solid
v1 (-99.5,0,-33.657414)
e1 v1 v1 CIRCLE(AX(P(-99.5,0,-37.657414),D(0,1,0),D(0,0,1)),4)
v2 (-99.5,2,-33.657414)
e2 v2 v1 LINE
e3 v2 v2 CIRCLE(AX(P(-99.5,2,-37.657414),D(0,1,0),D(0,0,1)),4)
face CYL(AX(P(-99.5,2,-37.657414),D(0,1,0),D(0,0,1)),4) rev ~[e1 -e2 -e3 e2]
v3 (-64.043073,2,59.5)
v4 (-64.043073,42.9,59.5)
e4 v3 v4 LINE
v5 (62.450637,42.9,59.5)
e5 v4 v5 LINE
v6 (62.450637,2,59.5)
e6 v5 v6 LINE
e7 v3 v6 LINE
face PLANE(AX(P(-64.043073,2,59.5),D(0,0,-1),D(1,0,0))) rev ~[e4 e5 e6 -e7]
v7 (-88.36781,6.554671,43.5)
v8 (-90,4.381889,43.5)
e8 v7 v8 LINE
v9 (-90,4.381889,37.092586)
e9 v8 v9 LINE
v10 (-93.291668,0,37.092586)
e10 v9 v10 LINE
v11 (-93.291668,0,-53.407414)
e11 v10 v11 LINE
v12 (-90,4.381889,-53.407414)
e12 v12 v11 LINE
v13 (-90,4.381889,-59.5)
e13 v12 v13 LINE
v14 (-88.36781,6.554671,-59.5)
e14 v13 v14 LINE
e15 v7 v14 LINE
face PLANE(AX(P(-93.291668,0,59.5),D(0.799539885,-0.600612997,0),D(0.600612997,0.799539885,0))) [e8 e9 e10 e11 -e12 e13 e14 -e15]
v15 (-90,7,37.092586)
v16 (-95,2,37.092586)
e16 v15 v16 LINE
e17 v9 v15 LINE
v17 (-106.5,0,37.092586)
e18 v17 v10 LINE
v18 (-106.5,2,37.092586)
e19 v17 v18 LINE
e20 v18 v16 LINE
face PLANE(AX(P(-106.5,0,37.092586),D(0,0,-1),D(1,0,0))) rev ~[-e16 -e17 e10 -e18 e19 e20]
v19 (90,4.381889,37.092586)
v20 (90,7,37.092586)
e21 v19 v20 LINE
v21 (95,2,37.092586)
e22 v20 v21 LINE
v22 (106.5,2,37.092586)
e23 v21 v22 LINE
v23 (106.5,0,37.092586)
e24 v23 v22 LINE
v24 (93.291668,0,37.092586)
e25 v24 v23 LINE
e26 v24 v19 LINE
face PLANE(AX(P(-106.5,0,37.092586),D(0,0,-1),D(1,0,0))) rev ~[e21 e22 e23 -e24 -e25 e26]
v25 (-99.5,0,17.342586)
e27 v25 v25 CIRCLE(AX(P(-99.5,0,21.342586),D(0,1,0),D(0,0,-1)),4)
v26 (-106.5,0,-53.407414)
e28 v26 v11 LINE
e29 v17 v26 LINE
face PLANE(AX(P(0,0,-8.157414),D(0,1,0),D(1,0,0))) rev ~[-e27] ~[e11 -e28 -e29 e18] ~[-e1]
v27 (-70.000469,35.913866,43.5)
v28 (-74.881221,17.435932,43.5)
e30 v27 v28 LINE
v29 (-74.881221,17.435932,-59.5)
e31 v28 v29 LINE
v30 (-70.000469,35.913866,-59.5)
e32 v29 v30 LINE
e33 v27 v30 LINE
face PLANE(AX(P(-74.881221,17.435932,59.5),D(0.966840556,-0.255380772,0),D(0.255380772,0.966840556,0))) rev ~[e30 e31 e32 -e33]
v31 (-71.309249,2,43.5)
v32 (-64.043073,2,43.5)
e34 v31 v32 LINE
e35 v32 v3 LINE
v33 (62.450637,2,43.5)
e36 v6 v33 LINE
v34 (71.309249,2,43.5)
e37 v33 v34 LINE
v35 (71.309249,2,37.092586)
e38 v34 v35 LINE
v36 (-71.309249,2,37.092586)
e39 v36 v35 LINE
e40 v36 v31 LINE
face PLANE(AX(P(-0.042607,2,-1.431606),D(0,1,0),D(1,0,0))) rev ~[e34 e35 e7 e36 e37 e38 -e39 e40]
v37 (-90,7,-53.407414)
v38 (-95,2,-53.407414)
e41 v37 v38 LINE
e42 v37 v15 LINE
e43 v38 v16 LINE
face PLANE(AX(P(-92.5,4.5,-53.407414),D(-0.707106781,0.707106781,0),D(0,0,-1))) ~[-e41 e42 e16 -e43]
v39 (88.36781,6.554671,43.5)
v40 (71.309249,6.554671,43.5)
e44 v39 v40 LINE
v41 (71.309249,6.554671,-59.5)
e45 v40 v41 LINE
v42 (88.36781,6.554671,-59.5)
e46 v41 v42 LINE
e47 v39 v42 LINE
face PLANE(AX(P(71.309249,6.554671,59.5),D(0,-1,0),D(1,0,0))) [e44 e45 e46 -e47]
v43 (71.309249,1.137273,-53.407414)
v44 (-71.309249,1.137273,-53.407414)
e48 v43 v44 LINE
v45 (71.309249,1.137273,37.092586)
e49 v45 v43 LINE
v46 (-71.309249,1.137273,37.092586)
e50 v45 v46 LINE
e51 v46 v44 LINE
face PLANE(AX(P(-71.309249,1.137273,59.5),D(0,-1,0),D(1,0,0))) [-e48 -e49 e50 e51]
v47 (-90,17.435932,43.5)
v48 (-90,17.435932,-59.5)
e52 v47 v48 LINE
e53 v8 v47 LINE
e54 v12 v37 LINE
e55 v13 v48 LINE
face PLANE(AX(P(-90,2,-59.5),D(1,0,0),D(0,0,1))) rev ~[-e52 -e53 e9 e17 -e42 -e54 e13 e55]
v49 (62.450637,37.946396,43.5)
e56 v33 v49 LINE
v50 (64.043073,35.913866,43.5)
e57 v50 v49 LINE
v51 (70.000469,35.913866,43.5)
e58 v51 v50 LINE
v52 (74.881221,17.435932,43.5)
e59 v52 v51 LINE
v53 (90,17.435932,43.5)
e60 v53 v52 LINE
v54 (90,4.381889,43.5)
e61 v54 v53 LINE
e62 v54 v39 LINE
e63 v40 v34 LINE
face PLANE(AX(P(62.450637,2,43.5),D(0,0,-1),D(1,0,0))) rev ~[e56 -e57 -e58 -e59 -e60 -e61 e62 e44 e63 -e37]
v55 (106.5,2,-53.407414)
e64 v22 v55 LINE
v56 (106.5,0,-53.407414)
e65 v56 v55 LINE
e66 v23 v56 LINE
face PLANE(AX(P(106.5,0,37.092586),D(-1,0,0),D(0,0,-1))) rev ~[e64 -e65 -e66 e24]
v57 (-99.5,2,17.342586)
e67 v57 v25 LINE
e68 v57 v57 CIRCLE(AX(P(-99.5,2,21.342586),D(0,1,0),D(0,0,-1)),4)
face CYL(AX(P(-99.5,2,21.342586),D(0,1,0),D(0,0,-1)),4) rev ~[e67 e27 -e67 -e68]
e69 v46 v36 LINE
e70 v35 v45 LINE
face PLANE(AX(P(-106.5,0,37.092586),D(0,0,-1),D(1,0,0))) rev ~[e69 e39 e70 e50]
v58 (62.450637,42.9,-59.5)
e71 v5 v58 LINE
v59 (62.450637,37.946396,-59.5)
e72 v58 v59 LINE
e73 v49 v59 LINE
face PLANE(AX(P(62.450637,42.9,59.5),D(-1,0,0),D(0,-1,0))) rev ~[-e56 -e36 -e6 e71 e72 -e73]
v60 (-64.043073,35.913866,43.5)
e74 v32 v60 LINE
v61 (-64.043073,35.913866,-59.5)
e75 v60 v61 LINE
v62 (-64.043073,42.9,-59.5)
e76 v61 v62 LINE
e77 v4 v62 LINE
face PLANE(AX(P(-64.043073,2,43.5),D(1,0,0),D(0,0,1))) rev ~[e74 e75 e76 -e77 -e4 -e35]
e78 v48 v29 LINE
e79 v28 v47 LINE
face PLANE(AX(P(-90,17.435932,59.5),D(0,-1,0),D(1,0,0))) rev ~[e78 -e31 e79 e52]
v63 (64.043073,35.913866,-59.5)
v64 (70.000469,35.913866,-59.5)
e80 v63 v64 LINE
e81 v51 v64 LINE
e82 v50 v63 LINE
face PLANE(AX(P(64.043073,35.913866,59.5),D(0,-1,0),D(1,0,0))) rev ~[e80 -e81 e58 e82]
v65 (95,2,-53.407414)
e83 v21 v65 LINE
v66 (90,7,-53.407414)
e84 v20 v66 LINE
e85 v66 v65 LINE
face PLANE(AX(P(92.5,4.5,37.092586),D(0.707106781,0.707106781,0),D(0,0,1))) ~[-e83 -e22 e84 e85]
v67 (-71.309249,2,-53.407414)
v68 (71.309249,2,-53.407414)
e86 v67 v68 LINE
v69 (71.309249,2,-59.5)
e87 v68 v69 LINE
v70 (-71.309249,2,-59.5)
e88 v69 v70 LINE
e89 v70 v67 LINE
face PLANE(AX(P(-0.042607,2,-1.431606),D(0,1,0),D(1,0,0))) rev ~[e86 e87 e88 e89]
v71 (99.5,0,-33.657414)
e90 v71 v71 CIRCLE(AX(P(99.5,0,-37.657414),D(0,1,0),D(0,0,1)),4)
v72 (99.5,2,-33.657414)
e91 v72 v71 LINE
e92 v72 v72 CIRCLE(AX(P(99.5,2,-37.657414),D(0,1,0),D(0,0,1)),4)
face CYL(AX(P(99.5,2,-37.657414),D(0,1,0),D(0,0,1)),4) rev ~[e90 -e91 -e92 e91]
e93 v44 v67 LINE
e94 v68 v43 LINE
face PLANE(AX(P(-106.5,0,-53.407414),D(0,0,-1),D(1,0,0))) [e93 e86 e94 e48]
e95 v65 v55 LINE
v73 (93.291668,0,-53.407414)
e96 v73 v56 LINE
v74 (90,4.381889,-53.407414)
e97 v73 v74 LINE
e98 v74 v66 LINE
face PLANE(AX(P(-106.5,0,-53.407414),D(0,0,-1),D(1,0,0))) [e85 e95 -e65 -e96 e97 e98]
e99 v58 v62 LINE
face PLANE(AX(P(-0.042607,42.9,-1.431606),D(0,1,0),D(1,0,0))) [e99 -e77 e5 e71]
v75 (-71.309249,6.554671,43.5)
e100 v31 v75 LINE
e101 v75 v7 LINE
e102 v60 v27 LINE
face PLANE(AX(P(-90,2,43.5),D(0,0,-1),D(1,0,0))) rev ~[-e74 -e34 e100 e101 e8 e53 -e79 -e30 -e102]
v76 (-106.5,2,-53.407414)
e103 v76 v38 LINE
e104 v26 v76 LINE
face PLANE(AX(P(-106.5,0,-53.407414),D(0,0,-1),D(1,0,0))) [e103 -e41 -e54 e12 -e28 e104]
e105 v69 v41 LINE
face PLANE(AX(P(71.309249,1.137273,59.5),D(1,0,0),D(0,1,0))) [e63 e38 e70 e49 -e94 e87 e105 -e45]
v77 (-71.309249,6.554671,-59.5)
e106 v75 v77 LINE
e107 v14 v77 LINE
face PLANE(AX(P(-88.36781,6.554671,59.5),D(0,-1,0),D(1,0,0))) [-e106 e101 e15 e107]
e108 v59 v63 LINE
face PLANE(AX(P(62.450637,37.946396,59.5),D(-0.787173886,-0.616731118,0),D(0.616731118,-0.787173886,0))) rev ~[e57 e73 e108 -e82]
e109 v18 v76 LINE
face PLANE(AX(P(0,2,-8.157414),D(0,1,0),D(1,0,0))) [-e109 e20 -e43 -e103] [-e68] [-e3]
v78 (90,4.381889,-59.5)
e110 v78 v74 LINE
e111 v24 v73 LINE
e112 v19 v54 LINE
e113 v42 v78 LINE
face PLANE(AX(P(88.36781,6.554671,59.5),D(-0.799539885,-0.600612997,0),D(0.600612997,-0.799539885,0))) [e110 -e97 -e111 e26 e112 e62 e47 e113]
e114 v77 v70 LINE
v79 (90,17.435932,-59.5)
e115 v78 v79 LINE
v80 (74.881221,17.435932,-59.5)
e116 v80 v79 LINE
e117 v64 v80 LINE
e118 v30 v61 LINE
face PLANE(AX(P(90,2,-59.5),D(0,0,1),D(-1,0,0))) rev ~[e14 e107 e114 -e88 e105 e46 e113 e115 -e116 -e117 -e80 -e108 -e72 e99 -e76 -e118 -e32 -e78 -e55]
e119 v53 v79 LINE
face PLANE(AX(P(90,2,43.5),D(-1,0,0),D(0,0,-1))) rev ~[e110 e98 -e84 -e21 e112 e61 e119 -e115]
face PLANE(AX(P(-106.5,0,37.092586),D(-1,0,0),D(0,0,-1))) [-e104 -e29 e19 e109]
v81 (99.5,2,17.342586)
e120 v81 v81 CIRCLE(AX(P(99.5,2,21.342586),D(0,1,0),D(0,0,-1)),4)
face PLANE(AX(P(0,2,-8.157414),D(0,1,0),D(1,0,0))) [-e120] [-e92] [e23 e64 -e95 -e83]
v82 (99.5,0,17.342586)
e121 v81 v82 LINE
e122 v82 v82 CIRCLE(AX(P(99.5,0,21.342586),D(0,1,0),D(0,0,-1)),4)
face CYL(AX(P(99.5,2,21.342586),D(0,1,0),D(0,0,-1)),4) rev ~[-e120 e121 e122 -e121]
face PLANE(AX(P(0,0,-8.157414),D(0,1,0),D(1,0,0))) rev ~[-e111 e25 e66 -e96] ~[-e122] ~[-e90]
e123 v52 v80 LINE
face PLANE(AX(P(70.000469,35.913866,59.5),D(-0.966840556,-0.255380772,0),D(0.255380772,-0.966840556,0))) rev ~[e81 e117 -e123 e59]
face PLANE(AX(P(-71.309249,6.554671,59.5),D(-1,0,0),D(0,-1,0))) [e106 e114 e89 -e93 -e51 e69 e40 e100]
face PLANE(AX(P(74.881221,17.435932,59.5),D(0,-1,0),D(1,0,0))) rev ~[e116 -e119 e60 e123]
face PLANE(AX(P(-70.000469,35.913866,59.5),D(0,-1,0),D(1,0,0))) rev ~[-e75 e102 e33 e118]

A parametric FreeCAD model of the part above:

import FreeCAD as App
import Part
import Sketcher
Q = App.Units.Quantity


def edges_at(feature, points):
    """Names of the edges that pass closest to the given points."""
    edges = feature.Shape.Edges
    near = lambda p: min(range(len(edges)), key=lambda i: edges[i].distToShape(Part.Vertex(*p))[0])
    return sorted({f"Edge{near(p) + 1}" for p in points})

doc = App.newDocument("Part")
body = doc.addObject("PartDesign::Body", "Body")

sketch1 = body.newObject("Sketcher::SketchObject", "Sketch")
sketch1.AttachmentSupport = (doc.getObject("XZ_Plane"), [""])
sketch1.MapMode = "FlatFace"
sketch1.addGeometry(Part.LineSegment(App.Vector(-106.5, -53.407414, 0), App.Vector(-106.5, 37.092586, 0)), False)
sketch1.addGeometry(Part.LineSegment(App.Vector(-106.5, 37.092586, 0), App.Vector(106.5, 37.092586, 0)), False)
sketch1.addGeometry(Part.LineSegment(App.Vector(106.5, 37.092586, 0), App.Vector(106.5, -53.407414, 0)), False)
sketch1.addGeometry(Part.LineSegment(App.Vector(106.5, -53.407414, 0), App.Vector(-106.5, -53.407414, 0)), False)
sketch1.addConstraint(Sketcher.Constraint("Coincident", 0, 2, 1, 1))
sketch1.addConstraint(Sketcher.Constraint("Coincident", 1, 2, 2, 1))
sketch1.addConstraint(Sketcher.Constraint("Coincident", 2, 2, 3, 1))
sketch1.addConstraint(Sketcher.Constraint("Coincident", 3, 2, 0, 1))
sketch1.addConstraint(Sketcher.Constraint("Vertical", 0))
sketch1.addConstraint(Sketcher.Constraint("Horizontal", 1))
sketch1.addConstraint(Sketcher.Constraint("Vertical", 2))
sketch1.addConstraint(Sketcher.Constraint("Horizontal", 3))
sketch1.addConstraint(Sketcher.Constraint("DistanceX", 1, 1, 1, 2, Q("213 mm")))
sketch1.addConstraint(Sketcher.Constraint("DistanceY", 0, 1, 0, 2, Q("90.5 mm")))
sketch1.addConstraint(Sketcher.Constraint("DistanceX", 0, 2, -1, 1, Q("106.5 mm")))
sketch1.addConstraint(Sketcher.Constraint("DistanceY", -1, 1, 0, 2, Q("37.092586 mm")))
pad1 = body.newObject("PartDesign::Pad", "Pad")
pad1.Profile = sketch1
pad1.Length = 2
pad1.Reversed = True

sketch2 = body.newObject("Sketcher::SketchObject", "Sketch001")
sketch2.AttachmentSupport = (doc.getObject("XZ_Plane"), [""])
sketch2.MapMode = "FlatFace"
sketch2.AttachmentOffset = App.Placement(App.Vector(0, 0, -2), App.Rotation())
sketch2.addGeometry(Part.LineSegment(App.Vector(-90, -59.5, 0), App.Vector(-90, 43.5, 0)), False)
sketch2.addGeometry(Part.LineSegment(App.Vector(-90, 43.5, 0), App.Vector(-64.043073, 43.5, 0)), False)
sketch2.addGeometry(Part.LineSegment(App.Vector(-64.043073, 43.5, 0), App.Vector(-64.043073, 59.5, 0)), False)
sketch2.addGeometry(Part.LineSegment(App.Vector(-64.043073, 59.5, 0), App.Vector(62.450637, 59.5, 0)), False)
sketch2.addGeometry(Part.LineSegment(App.Vector(62.450637, 59.5, 0), App.Vector(62.450637, 43.5, 0)), False)
sketch2.addGeometry(Part.LineSegment(App.Vector(62.450637, 43.5, 0), App.Vector(90, 43.5, 0)), False)
sketch2.addGeometry(Part.LineSegment(App.Vector(90, 43.5, 0), App.Vector(90, -59.5, 0)), False)
sketch2.addGeometry(Part.LineSegment(App.Vector(90, -59.5, 0), App.Vector(-90, -59.5, 0)), False)
sketch2.addConstraint(Sketcher.Constraint("Coincident", 0, 2, 1, 1))
sketch2.addConstraint(Sketcher.Constraint("Coincident", 1, 2, 2, 1))
sketch2.addConstraint(Sketcher.Constraint("Coincident", 2, 2, 3, 1))
sketch2.addConstraint(Sketcher.Constraint("Coincident", 3, 2, 4, 1))
sketch2.addConstraint(Sketcher.Constraint("Coincident", 4, 2, 5, 1))
sketch2.addConstraint(Sketcher.Constraint("Coincident", 5, 2, 6, 1))
sketch2.addConstraint(Sketcher.Constraint("Coincident", 6, 2, 7, 1))
sketch2.addConstraint(Sketcher.Constraint("Coincident", 7, 2, 0, 1))
sketch2.addConstraint(Sketcher.Constraint("Vertical", 0))
sketch2.addConstraint(Sketcher.Constraint("Horizontal", 1))
sketch2.addConstraint(Sketcher.Constraint("Vertical", 2))
sketch2.addConstraint(Sketcher.Constraint("Horizontal", 3))
sketch2.addConstraint(Sketcher.Constraint("Vertical", 4))
sketch2.addConstraint(Sketcher.Constraint("Horizontal", 5))
sketch2.addConstraint(Sketcher.Constraint("Vertical", 6))
sketch2.addConstraint(Sketcher.Constraint("Horizontal", 7))
sketch2.addConstraint(Sketcher.Constraint("Symmetric", 0, 2, 5, 2, -2))
sketch2.addConstraint(Sketcher.Constraint("DistanceX", 7, 2, 7, 1, Q("180 mm")))
sketch2.addConstraint(Sketcher.Constraint("DistanceY", 0, 1, 0, 2, Q("103 mm")))
sketch2.addConstraint(Sketcher.Constraint("DistanceY", 2, 1, 2, 2, Q("16 mm")))
sketch2.addConstraint(Sketcher.Constraint("DistanceY", -1, 1, 0, 2, Q("43.5 mm")))
sketch2.addConstraint(Sketcher.Constraint("DistanceX", 3, 1, 3, 2, Q("126.49371 mm")))
sketch2.addConstraint(Sketcher.Constraint("DistanceX", 1, 1, 1, 2, Q("25.956927 mm")))
pad2 = body.newObject("PartDesign::Pad", "Pad001")
pad2.Profile = sketch2
pad2.Length = 40.9
pad2.Reversed = True
doc.recompute()

chamfer = body.newObject("PartDesign::Chamfer", "Chamfer")
chamfer.Base = (pad2, edges_at(pad2, [(90, 2, -8.157), (-90, 2, -8.157)]))
chamfer.Size = 5

sketch3 = body.newObject("Sketcher::SketchObject", "Sketch002")
sketch3.AttachmentSupport = (doc.getObject("XY_Plane"), [""])
sketch3.MapMode = "FlatFace"
sketch3.AttachmentOffset = App.Placement(App.Vector(0, 0, 59.5), App.Rotation())
sketch3.addGeometry(Part.LineSegment(App.Vector(-88.36781, 6.554671, 0), App.Vector(-93.291668, 0, 0)), False)
sketch3.addGeometry(Part.LineSegment(App.Vector(-93.291668, 0, 0), App.Vector(-93.291668, -4.012269, 0)), False)
sketch3.addGeometry(Part.LineSegment(App.Vector(-93.291668, -4.012269, 0), App.Vector(93.291668, -4.012269, 0)), False)
sketch3.addGeometry(Part.LineSegment(App.Vector(93.291668, -4.012269, 0), App.Vector(93.291668, 0, 0)), False)
sketch3.addGeometry(Part.LineSegment(App.Vector(93.291668, 0, 0), App.Vector(88.36781, 6.554671, 0)), False)
sketch3.addGeometry(Part.LineSegment(App.Vector(88.36781, 6.554671, 0), App.Vector(71.309249, 6.554671, 0)), False)
sketch3.addGeometry(Part.LineSegment(App.Vector(71.309249, 6.554671, 0), App.Vector(71.309249, 1.137273, 0)), False)
sketch3.addGeometry(Part.LineSegment(App.Vector(71.309249, 1.137273, 0), App.Vector(-71.309249, 1.137273, 0)), False)
sketch3.addGeometry(Part.LineSegment(App.Vector(-71.309249, 1.137273, 0), App.Vector(-71.309249, 6.554671, 0)), False)
sketch3.addGeometry(Part.LineSegment(App.Vector(-71.309249, 6.554671, 0), App.Vector(-88.36781, 6.554671, 0)), False)
sketch3.addConstraint(Sketcher.Constraint("Coincident", 0, 2, 1, 1))
sketch3.addConstraint(Sketcher.Constraint("Coincident", 1, 2, 2, 1))
sketch3.addConstraint(Sketcher.Constraint("Coincident", 2, 2, 3, 1))
sketch3.addConstraint(Sketcher.Constraint("Coincident", 3, 2, 4, 1))
sketch3.addConstraint(Sketcher.Constraint("Coincident", 4, 2, 5, 1))
sketch3.addConstraint(Sketcher.Constraint("Coincident", 5, 2, 6, 1))
sketch3.addConstraint(Sketcher.Constraint("Coincident", 6, 2, 7, 1))
sketch3.addConstraint(Sketcher.Constraint("Coincident", 7, 2, 8, 1))
sketch3.addConstraint(Sketcher.Constraint("Coincident", 8, 2, 9, 1))
sketch3.addConstraint(Sketcher.Constraint("Coincident", 9, 2, 0, 1))
sketch3.addConstraint(Sketcher.Constraint("Vertical", 1))
sketch3.addConstraint(Sketcher.Constraint("Horizontal", 2))
sketch3.addConstraint(Sketcher.Constraint("Vertical", 3))
sketch3.addConstraint(Sketcher.Constraint("Horizontal", 5))
sketch3.addConstraint(Sketcher.Constraint("Vertical", 6))
sketch3.addConstraint(Sketcher.Constraint("Horizontal", 7))
sketch3.addConstraint(Sketcher.Constraint("Vertical", 8))
sketch3.addConstraint(Sketcher.Constraint("Horizontal", 9))
sketch3.addConstraint(Sketcher.Constraint("Symmetric", 0, 2, 3, 2, -1, 1))
sketch3.addConstraint(Sketcher.Constraint("Symmetric", 5, 2, 8, 2, -2))
sketch3.addConstraint(Sketcher.Constraint("PointOnObject", 0, 2, -1))
sketch3.addConstraint(Sketcher.Constraint("Equal", 5, 9))
sketch3.addConstraint(Sketcher.Constraint("DistanceX", 5, 2, 5, 1, Q("17.058561 mm")))
sketch3.addConstraint(Sketcher.Constraint("DistanceY", 1, 2, 1, 1, Q("4.012269 mm")))
sketch3.addConstraint(Sketcher.Constraint("DistanceX", 2, 1, 2, 2, Q("186.583336 mm")))
sketch3.addConstraint(Sketcher.Constraint("DistanceX", 7, 2, 7, 1, Q("142.618498 mm")))
sketch3.addConstraint(Sketcher.Constraint("DistanceY", 6, 2, 6, 1, Q("5.417398 mm")))
sketch3.addConstraint(Sketcher.Constraint("DistanceY", -1, 1, 4, 2, Q("6.554671 mm")))
pocket1 = body.newObject("PartDesign::Pocket", "Pocket")
pocket1.Profile = sketch3
pocket1.Type = "ThroughAll"

sketch4 = body.newObject("Sketcher::SketchObject", "Sketch003")
sketch4.AttachmentSupport = (doc.getObject("XY_Plane"), [""])
sketch4.MapMode = "FlatFace"
sketch4.AttachmentOffset = App.Placement(App.Vector(0, 0, 59.5), App.Rotation())
sketch4.addGeometry(Part.LineSegment(App.Vector(-90, 53.559109, 0), App.Vector(-90, 17.435932, 0)), False)
sketch4.addGeometry(Part.LineSegment(App.Vector(-90, 17.435932, 0), App.Vector(-74.881221, 17.435932, 0)), False)
sketch4.addGeometry(Part.LineSegment(App.Vector(-74.881221, 17.435932, 0), App.Vector(-70.000469, 35.913866, 0)), False)
sketch4.addGeometry(Part.LineSegment(App.Vector(-70.000469, 35.913866, 0), App.Vector(-64.043073, 35.913866, 0)), False)
sketch4.addGeometry(Part.LineSegment(App.Vector(-64.043073, 35.913866, 0), App.Vector(-64.043073, 42.9, 0)), False)
sketch4.addGeometry(Part.LineSegment(App.Vector(-64.043073, 42.9, 0), App.Vector(62.450637, 42.9, 0)), False)
sketch4.addGeometry(Part.LineSegment(App.Vector(62.450637, 42.9, 0), App.Vector(62.450637, 37.946396, 0)), False)
sketch4.addGeometry(Part.LineSegment(App.Vector(62.450637, 37.946396, 0), App.Vector(64.043073, 35.913866, 0)), False)
sketch4.addGeometry(Part.LineSegment(App.Vector(64.043073, 35.913866, 0), App.Vector(70.000469, 35.913866, 0)), False)
sketch4.addGeometry(Part.LineSegment(App.Vector(70.000469, 35.913866, 0), App.Vector(74.881221, 17.435932, 0)), False)
sketch4.addGeometry(Part.LineSegment(App.Vector(74.881221, 17.435932, 0), App.Vector(90, 17.435932, 0)), False)
sketch4.addGeometry(Part.LineSegment(App.Vector(90, 17.435932, 0), App.Vector(90, 53.559109, 0)), False)
sketch4.addGeometry(Part.LineSegment(App.Vector(90, 53.559109, 0), App.Vector(-90, 53.559109, 0)), False)
sketch4.addConstraint(Sketcher.Constraint("Coincident", 0, 2, 1, 1))
sketch4.addConstraint(Sketcher.Constraint("Coincident", 1, 2, 2, 1))
sketch4.addConstraint(Sketcher.Constraint("Coincident", 2, 2, 3, 1))
sketch4.addConstraint(Sketcher.Constraint("Coincident", 3, 2, 4, 1))
sketch4.addConstraint(Sketcher.Constraint("Coincident", 4, 2, 5, 1))
sketch4.addConstraint(Sketcher.Constraint("Coincident", 5, 2, 6, 1))
sketch4.addConstraint(Sketcher.Constraint("Coincident", 6, 2, 7, 1))
sketch4.addConstraint(Sketcher.Constraint("Coincident", 7, 2, 8, 1))
sketch4.addConstraint(Sketcher.Constraint("Coincident", 8, 2, 9, 1))
sketch4.addConstraint(Sketcher.Constraint("Coincident", 9, 2, 10, 1))
sketch4.addConstraint(Sketcher.Constraint("Coincident", 10, 2, 11, 1))
sketch4.addConstraint(Sketcher.Constraint("Coincident", 11, 2, 12, 1))
sketch4.addConstraint(Sketcher.Constraint("Coincident", 12, 2, 0, 1))
sketch4.addConstraint(Sketcher.Constraint("Vertical", 0))
sketch4.addConstraint(Sketcher.Constraint("Horizontal", 1))
sketch4.addConstraint(Sketcher.Constraint("Horizontal", 3))
sketch4.addConstraint(Sketcher.Constraint("Vertical", 4))
sketch4.addConstraint(Sketcher.Constraint("Horizontal", 5))
sketch4.addConstraint(Sketcher.Constraint("Vertical", 6))
sketch4.addConstraint(Sketcher.Constraint("Horizontal", 8))
sketch4.addConstraint(Sketcher.Constraint("Horizontal", 10))
sketch4.addConstraint(Sketcher.Constraint("Vertical", 11))
sketch4.addConstraint(Sketcher.Constraint("Horizontal", 12))
sketch4.addConstraint(Sketcher.Constraint("Symmetric", 3, 2, 7, 2, -2))
sketch4.addConstraint(Sketcher.Constraint("Symmetric", 1, 2, 9, 2, -2))
sketch4.addConstraint(Sketcher.Constraint("Equal", 3, 8))
sketch4.addConstraint(Sketcher.Constraint("Equal", 1, 10))
sketch4.addConstraint(Sketcher.Constraint("DistanceX", 12, 2, 12, 1, Q("180 mm")))
sketch4.addConstraint(Sketcher.Constraint("DistanceY", -1, 1, 4, 2, Q("42.9 mm")))
sketch4.addConstraint(Sketcher.Constraint("DistanceX", 1, 1, 1, 2, Q("15.118779 mm")))
sketch4.addConstraint(Sketcher.Constraint("DistanceX", 5, 1, 5, 2, Q("126.49371 mm")))
sketch4.addConstraint(Sketcher.Constraint("Distance", 7, Q("2.58206 mm")))
sketch4.addConstraint(Sketcher.Constraint("DistanceX", 3, 1, 3, 2, Q("5.957395 mm")))
sketch4.addConstraint(Sketcher.Constraint("DistanceY", 0, 2, 0, 1, Q("36.123177 mm")))
sketch4.addConstraint(Sketcher.Constraint("DistanceY", 4, 1, 4, 2, Q("6.986134 mm")))
sketch4.addConstraint(Sketcher.Constraint("DistanceY", 6, 2, 6, 1, Q("4.953604 mm")))
sketch4.addConstraint(Sketcher.Constraint("DistanceY", -1, 1, 11, 2, Q("53.559109 mm")))
pocket2 = body.newObject("PartDesign::Pocket", "Pocket001")
pocket2.Profile = sketch4
pocket2.Type = "ThroughAll"

sketch5 = body.newObject("Sketcher::SketchObject", "Sketch004")
sketch5.AttachmentSupport = (doc.getObject("XZ_Plane"), [""])
sketch5.MapMode = "FlatFace"
sketch5.AttachmentOffset = App.Placement(App.Vector(0, 0, -2), App.Rotation())
sketch5.addGeometry(Part.Circle(App.Vector(99.5, -37.657414, 0), App.Vector(0, 0, 1), 4), False)
sketch5.addGeometry(Part.Circle(App.Vector(-99.5, -37.657414, 0), App.Vector(0, 0, 1), 4), False)
sketch5.addGeometry(Part.Circle(App.Vector(-99.5, 21.342586, 0), App.Vector(0, 0, 1), 4), False)
sketch5.addGeometry(Part.Circle(App.Vector(99.5, 21.342586, 0), App.Vector(0, 0, 1), 4), False)
sketch5.addConstraint(Sketcher.Constraint("Equal", 0, 1))
sketch5.addConstraint(Sketcher.Constraint("Equal", 1, 2))
sketch5.addConstraint(Sketcher.Constraint("Equal", 2, 3))
sketch5.addConstraint(Sketcher.Constraint("Symmetric", 0, 3, 1, 3, -2))
sketch5.addConstraint(Sketcher.Constraint("Symmetric", 2, 3, 3, 3, -2))
sketch5.addConstraint(Sketcher.Constraint("Vertical", 1, 3, 2, 3))
sketch5.addConstraint(Sketcher.Constraint("Diameter", 0, Q("8 mm")))
sketch5.addConstraint(Sketcher.Constraint("DistanceX", 1, 3, 0, 3, Q("199 mm")))
sketch5.addConstraint(Sketcher.Constraint("DistanceY", 1, 3, 2, 3, Q("59 mm")))
sketch5.addConstraint(Sketcher.Constraint("DistanceY", 0, 3, -1, 1, Q("37.657414 mm")))
pocket3 = body.newObject("PartDesign::Pocket", "Pocket002")
pocket3.Profile = sketch5
pocket3.Length = 40.9
pocket3.Reversed = True

doc.recompute()
